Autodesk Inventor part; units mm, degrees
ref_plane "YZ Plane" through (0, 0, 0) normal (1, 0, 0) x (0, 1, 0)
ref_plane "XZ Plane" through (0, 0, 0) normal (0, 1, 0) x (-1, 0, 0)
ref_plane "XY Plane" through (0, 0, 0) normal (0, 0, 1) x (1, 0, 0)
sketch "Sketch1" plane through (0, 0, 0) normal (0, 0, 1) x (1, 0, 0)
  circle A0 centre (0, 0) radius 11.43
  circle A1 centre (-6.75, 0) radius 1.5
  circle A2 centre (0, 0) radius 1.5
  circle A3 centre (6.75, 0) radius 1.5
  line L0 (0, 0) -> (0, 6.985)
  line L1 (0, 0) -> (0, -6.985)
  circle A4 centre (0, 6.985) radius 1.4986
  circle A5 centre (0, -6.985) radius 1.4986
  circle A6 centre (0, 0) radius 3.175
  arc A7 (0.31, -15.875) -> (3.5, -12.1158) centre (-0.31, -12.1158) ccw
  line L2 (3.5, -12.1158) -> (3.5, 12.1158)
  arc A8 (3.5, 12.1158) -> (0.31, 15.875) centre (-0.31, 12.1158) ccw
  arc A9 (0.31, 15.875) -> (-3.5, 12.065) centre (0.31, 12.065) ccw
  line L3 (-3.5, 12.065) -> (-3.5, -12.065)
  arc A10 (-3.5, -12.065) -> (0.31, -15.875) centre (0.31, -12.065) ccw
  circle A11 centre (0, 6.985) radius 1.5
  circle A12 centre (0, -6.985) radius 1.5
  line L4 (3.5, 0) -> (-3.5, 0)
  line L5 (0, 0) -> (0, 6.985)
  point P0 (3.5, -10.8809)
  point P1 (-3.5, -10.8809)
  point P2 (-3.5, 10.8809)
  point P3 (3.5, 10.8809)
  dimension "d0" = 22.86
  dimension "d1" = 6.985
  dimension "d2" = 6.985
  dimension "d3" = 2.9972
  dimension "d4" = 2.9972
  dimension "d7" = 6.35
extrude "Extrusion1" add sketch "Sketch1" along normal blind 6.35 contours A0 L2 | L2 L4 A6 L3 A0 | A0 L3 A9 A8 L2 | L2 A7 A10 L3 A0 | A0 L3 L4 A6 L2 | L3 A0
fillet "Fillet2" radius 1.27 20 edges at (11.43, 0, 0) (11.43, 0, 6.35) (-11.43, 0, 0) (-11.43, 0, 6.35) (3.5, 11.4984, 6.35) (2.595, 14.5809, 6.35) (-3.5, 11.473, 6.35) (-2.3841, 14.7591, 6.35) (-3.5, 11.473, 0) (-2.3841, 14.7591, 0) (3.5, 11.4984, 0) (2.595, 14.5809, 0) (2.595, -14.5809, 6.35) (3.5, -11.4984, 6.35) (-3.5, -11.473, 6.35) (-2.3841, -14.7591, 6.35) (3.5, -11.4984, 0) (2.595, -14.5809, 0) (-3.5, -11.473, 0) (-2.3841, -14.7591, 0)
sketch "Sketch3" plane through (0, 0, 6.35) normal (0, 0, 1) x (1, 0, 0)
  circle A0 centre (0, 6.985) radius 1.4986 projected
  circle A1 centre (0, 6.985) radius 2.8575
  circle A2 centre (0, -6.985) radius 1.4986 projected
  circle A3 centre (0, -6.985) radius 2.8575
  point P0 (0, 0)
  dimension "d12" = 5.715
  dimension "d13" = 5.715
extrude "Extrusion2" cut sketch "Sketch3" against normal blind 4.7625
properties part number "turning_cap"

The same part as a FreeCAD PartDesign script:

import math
import FreeCAD as App
import Part
import Sketcher

V = App.Vector
Q = App.Units.Quantity


def edges_at(feature, points):
    """Names of the edges that pass closest to the given points."""
    edges = feature.Shape.Edges
    near = lambda p: min(range(len(edges)), key=lambda i: edges[i].distToShape(Part.Vertex(*p))[0])
    return sorted({f"Edge{near(p) + 1}" for p in points})

doc = App.newDocument("Part")
body = doc.addObject("PartDesign::Body", "Body")

sketch1 = body.newObject("Sketcher::SketchObject", "Sketch")
sketch1.AttachmentSupport = (doc.getObject("XY_Plane"), [""])
sketch1.MapMode = "FlatFace"
sketch1.addGeometry([
    Part.ArcOfCircle(Part.Circle(V(0, 0, 0), V(0, 0, 1), 11.43), math.radians(-72.168921), math.radians(72.168921)),
    Part.LineSegment(V(3.5, 10.880942, 0), V(3.5, 12.1158, 0)),
    Part.ArcOfCircle(Part.Circle(V(-0.31, 12.1158, 0), V(0, 0, 1), 3.81), math.radians(0), math.radians(80.634591)),
    Part.ArcOfCircle(Part.Circle(V(0.31, 12.065, 0), V(0, 0, 1), 3.81), math.radians(90), math.radians(180)),
    Part.LineSegment(V(-3.5, 12.065, 0), V(-3.5, 10.880942, 0)),
    Part.ArcOfCircle(Part.Circle(V(0, 0, 0), V(0, 0, 1), 11.43), math.radians(107.831079), math.radians(252.168921)),
    Part.LineSegment(V(-3.5, -10.880942, 0), V(-3.5, -12.065, 0)),
    Part.ArcOfCircle(Part.Circle(V(0.31, -12.065, 0), V(0, 0, 1), 3.81), math.radians(180), math.radians(270)),
    Part.ArcOfCircle(Part.Circle(V(-0.31, -12.1158, 0), V(0, 0, 1), 3.809985), math.radians(-80.634591), math.radians(0)),
    Part.LineSegment(V(3.5, -12.1158, 0), V(3.5, -10.880942, 0)),
    Part.Circle(V(6.75, 0, 0), V(0, 0, 1), 1.5),
    Part.ArcOfCircle(Part.Circle(V(0, 0, 0), V(0, 0, 1), 3.175), math.radians(90), math.radians(270)),
    Part.ArcOfCircle(Part.Circle(V(0, 0, 0), V(0, 0, 1), 3.175), math.radians(-90), math.radians(90)),
    Part.Circle(V(0, -6.985, 0), V(0, 0, 1), 1.4986),
    Part.Circle(V(0, 6.985, 0), V(0, 0, 1), 1.4986),
    Part.Circle(V(-6.75, 0, 0), V(0, 0, 1), 1.5),
], False)
sketch1.addConstraint([
    Sketcher.Constraint("Coincident", 0, 2, 1, 1),
    Sketcher.Constraint("Tangent", 1, 2, 2, 1),
    Sketcher.Constraint("Coincident", 2, 2, 3, 1),
    Sketcher.Constraint("Tangent", 3, 2, 4, 1),
    Sketcher.Constraint("Coincident", 4, 2, 5, 1),
    Sketcher.Constraint("Coincident", 5, 2, 6, 1),
    Sketcher.Constraint("Tangent", 6, 2, 7, 1),
    Sketcher.Constraint("Coincident", 7, 2, 8, 1),
    Sketcher.Constraint("Tangent", 8, 2, 9, 1),
    Sketcher.Constraint("Coincident", 9, 2, 0, 1),
    Sketcher.Constraint("Tangent", 11, 1, 12, 2),
    Sketcher.Constraint("Coincident", 12, 1, 11, 2),
    Sketcher.Constraint("Vertical", 1),
    Sketcher.Constraint("Vertical", 4),
    Sketcher.Constraint("Vertical", 6),
    Sketcher.Constraint("Vertical", 9),
    Sketcher.Constraint("Coincident", 0, 3, -1, 1),
    Sketcher.Constraint("Coincident", 5, 3, -1, 1),
    Sketcher.Constraint("Coincident", 11, 3, -1, 1),
    Sketcher.Constraint("Equal", 2, 3),
    Sketcher.Constraint("Equal", 0, 5),
    Sketcher.Constraint("Equal", 3, 7),
    Sketcher.Constraint("Equal", 7, 8),
    Sketcher.Constraint("Equal", 13, 14),
    Sketcher.Constraint("Equal", 10, 15),
    Sketcher.Constraint("Symmetric", 13, 3, 14, 3, -1, 1),
    Sketcher.Constraint("Symmetric", 10, 3, 15, 3, -1, 1),
    Sketcher.Constraint("Symmetric", 3, 3, 7, 3, -1),
    Sketcher.Constraint("Symmetric", 2, 3, 8, 3, -1),
    Sketcher.Constraint("PointOnObject", 10, 3, -1),
    Sketcher.Constraint("PointOnObject", 13, 3, -2),
    Sketcher.Constraint("PointOnObject", 11, 1, -2),
    Sketcher.Constraint("PointOnObject", 12, 1, -2),
    Sketcher.Constraint("Horizontal", 0, 2, 4, 2),
    Sketcher.Constraint("Vertical", 7, 3, 2, 2),
    Sketcher.Constraint("Radius", 0, Q("0.45 in")),
    Sketcher.Constraint("Diameter", 13, Q("0.118 in")),
    Sketcher.Constraint("Radius", 11, Q("0.125 in")),
    Sketcher.Constraint("Radius", 2, Q("0.15 in")),
    Sketcher.Constraint("DistanceY", 13, 3, -1, 1, Q("0.275 in")),
    Sketcher.Constraint("Diameter", 10, Q("0.1181 in")),
    Sketcher.Constraint("DistanceY", 7, 3, 13, 3, Q("0.2 in")),
    Sketcher.Constraint("DistanceY", -1, 1, 2, 3, Q("0.477 in")),
    Sketcher.Constraint("DistanceX", -1, 1, 10, 3, 6.75),
])
pad1 = body.newObject("PartDesign::Pad", "Pad")
pad1.Profile = sketch1
pad1.Length = Q("0.25 in")
doc.recompute()

fillet = body.newObject("PartDesign::Fillet", "Fillet")
fillet.Base = (pad1, edges_at(pad1, [
    (11.43, 0, 0),
    (11.43, 0, 6.35),
    (-11.43, 0, 0),
    (-11.43, 0, 6.35),
    (3.5, 11.498, 6.35),
    (2.595, 14.581, 6.35),
    (-3.5, 11.473, 6.35),
    (-2.384, 14.759, 6.35),
    (-3.5, 11.473, 0),
    (-2.384, 14.759, 0),
    (3.5, 11.498, 0),
    (2.595, 14.581, 0),
    (2.595, -14.581, 6.35),
    (3.5, -11.498, 6.35),
    (-3.5, -11.473, 6.35),
    (-2.384, -14.759, 6.35),
    (3.5, -11.498, 0),
    (2.595, -14.581, 0),
    (-3.5, -11.473, 0),
    (-2.384, -14.759, 0),
]))
fillet.Radius = Q("0.05 in")

sketch2 = body.newObject("Sketcher::SketchObject", "Sketch001")
sketch2.AttachmentSupport = (doc.getObject("XY_Plane"), [""])
sketch2.MapMode = "FlatFace"
sketch2.AttachmentOffset = App.Placement(V(0, 0, 0.25 * 25.4), App.Rotation())
sketch2.addGeometry([
    Part.Circle(V(0, 6.985, 0), V(0, 0, 1), 2.8575),
    Part.Circle(V(0, 6.985, 0), V(0, 0, 1), 1.4986),
    Part.Circle(V(0, -6.985, 0), V(0, 0, 1), 2.8575),
    Part.Circle(V(0, -6.985, 0), V(0, 0, 1), 1.4986),
], False)
sketch2.addConstraint([
    Sketcher.Constraint("Coincident", 1, 3, 0, 3),
    Sketcher.Constraint("Coincident", 3, 3, 2, 3),
    Sketcher.Constraint("Equal", 0, 2),
    Sketcher.Constraint("Equal", 1, 3),
    Sketcher.Constraint("Symmetric", 0, 3, 2, 3, -1, 1),
    Sketcher.Constraint("PointOnObject", 0, 3, -2),
    Sketcher.Constraint("Diameter", 0, Q("0.225 in")),
    Sketcher.Constraint("Diameter", 1, Q("0.118 in")),
    Sketcher.Constraint("DistanceY", 2, 3, 0, 3, Q("0.55 in")),
])
pocket1 = body.newObject("PartDesign::Pocket", "Pocket")
pocket1.Profile = sketch2
pocket1.Length = Q("0.1875 in")

doc.recompute()
